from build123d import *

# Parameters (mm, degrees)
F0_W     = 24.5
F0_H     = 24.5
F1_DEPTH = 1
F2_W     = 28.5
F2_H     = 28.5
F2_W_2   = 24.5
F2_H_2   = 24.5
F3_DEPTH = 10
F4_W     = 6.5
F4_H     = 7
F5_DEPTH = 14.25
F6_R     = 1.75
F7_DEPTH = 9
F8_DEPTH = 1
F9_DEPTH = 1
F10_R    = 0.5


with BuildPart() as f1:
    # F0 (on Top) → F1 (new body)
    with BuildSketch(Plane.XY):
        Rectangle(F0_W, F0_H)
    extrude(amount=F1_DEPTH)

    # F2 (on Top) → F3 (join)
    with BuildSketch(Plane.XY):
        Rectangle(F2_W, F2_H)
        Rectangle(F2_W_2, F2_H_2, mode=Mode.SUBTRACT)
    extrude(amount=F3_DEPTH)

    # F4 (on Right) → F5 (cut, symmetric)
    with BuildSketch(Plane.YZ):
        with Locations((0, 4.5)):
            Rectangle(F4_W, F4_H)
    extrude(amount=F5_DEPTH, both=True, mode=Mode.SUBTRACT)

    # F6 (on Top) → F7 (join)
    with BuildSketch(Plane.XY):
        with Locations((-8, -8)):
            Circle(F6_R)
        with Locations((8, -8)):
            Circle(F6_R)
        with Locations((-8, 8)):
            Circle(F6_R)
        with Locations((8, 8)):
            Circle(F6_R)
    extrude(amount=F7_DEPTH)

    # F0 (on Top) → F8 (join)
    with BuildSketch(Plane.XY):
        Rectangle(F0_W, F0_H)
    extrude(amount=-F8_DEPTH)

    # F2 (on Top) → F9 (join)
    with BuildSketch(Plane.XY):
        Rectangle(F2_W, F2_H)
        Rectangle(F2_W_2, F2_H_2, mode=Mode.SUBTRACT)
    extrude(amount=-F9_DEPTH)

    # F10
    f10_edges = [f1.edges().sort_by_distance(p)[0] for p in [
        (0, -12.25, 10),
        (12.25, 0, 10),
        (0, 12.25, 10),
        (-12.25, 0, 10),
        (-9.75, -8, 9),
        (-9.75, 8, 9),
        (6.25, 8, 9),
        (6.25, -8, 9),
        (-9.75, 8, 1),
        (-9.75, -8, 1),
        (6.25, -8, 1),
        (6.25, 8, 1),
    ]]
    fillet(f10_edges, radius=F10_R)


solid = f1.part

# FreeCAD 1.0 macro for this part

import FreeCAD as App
import Part
import Sketcher
Q = App.Units.Quantity


def edges_at(feature, points):
    """Names of the edges that pass closest to the given points."""
    edges = feature.Shape.Edges
    near = lambda p: min(range(len(edges)), key=lambda i: edges[i].distToShape(Part.Vertex(*p))[0])
    return sorted({f"Edge{near(p) + 1}" for p in points})

doc = App.newDocument("Part")
body = doc.addObject("PartDesign::Body", "Body")

sketch1 = doc.addObject("Sketcher::SketchObject", "Sketch")
body.addObject(sketch1)
sketch1.AttachmentSupport = (doc.XY_Plane, [""])
sketch1.MapMode = "FlatFace"
sketch1.addGeometry([
    Part.LineSegment(App.Vector(-12, 12, 0), App.Vector(-12, -12, 0)),
    Part.LineSegment(App.Vector(-12, -12, 0), App.Vector(12, -12, 0)),
    Part.LineSegment(App.Vector(12, -12, 0), App.Vector(12, 12, 0)),
    Part.LineSegment(App.Vector(12, 12, 0), App.Vector(-12, 12, 0)),
], False)
sketch1.addConstraint([
    Sketcher.Constraint("Coincident", 0, 2, 1, 1),
    Sketcher.Constraint("Coincident", 1, 2, 2, 1),
    Sketcher.Constraint("Coincident", 2, 2, 3, 1),
    Sketcher.Constraint("Coincident", 3, 2, 0, 1),
    Sketcher.Constraint("Vertical", 0),
    Sketcher.Constraint("Horizontal", 1),
    Sketcher.Constraint("Vertical", 2),
    Sketcher.Constraint("Horizontal", 3),
    Sketcher.Constraint("Symmetric", 0, 2, 2, 2, -1, 1),
    Sketcher.Constraint("Equal", 3, 0),
    Sketcher.Constraint("DistanceX", 1, 1, 1, 2, Q("24.5 mm")),
])
pad1 = doc.addObject("PartDesign::Pad", "Pad")
body.addObject(pad1)
pad1.Profile = sketch1
pad1.Length = 1

sketch2 = doc.addObject("Sketcher::SketchObject", "Sketch001")
body.addObject(sketch2)
sketch2.AttachmentSupport = (doc.XY_Plane, [""])
sketch2.MapMode = "FlatFace"
sketch2.addGeometry([
    Part.LineSegment(App.Vector(-14, 14, 0), App.Vector(-14, -14, 0)),
    Part.LineSegment(App.Vector(-14, -14, 0), App.Vector(14, -14, 0)),
    Part.LineSegment(App.Vector(14, -14, 0), App.Vector(14, 14, 0)),
    Part.LineSegment(App.Vector(14, 14, 0), App.Vector(-14, 14, 0)),
    Part.LineSegment(App.Vector(12, -12, 0), App.Vector(-12, -12, 0)),
    Part.LineSegment(App.Vector(-12, -12, 0), App.Vector(-12, 12, 0)),
    Part.LineSegment(App.Vector(-12, 12, 0), App.Vector(12, 12, 0)),
    Part.LineSegment(App.Vector(12, 12, 0), App.Vector(12, -12, 0)),
], False)
sketch2.addConstraint([
    Sketcher.Constraint("Coincident", 0, 2, 1, 1),
    Sketcher.Constraint("Coincident", 1, 2, 2, 1),
    Sketcher.Constraint("Coincident", 2, 2, 3, 1),
    Sketcher.Constraint("Coincident", 3, 2, 0, 1),
    Sketcher.Constraint("Coincident", 4, 2, 5, 1),
    Sketcher.Constraint("Coincident", 5, 2, 6, 1),
    Sketcher.Constraint("Coincident", 6, 2, 7, 1),
    Sketcher.Constraint("Coincident", 7, 2, 4, 1),
    Sketcher.Constraint("Vertical", 0),
    Sketcher.Constraint("Horizontal", 1),
    Sketcher.Constraint("Vertical", 2),
    Sketcher.Constraint("Horizontal", 3),
    Sketcher.Constraint("Horizontal", 4),
    Sketcher.Constraint("Vertical", 5),
    Sketcher.Constraint("Horizontal", 6),
    Sketcher.Constraint("Vertical", 7),
    Sketcher.Constraint("Symmetric", 0, 2, 2, 2, -1, 1),
    Sketcher.Constraint("Symmetric", 4, 2, 6, 2, -1, 1),
    Sketcher.Constraint("Equal", 3, 0),
    Sketcher.Constraint("Equal", 6, 5),
    Sketcher.Constraint("DistanceX", 1, 1, 1, 2, Q("28.5 mm")),
    Sketcher.Constraint("DistanceX", 4, 2, 4, 1, Q("24.5 mm")),
])
pad2 = doc.addObject("PartDesign::Pad", "Pad001")
body.addObject(pad2)
pad2.Profile = sketch2
pad2.Length = 10

sketch3 = doc.addObject("Sketcher::SketchObject", "Sketch002")
body.addObject(sketch3)
sketch3.AttachmentSupport = (doc.YZ_Plane, [""])
sketch3.MapMode = "FlatFace"
sketch3.addGeometry([
    Part.LineSegment(App.Vector(-3, 8, 0), App.Vector(-3, 1, 0)),
    Part.LineSegment(App.Vector(-3, 1, 0), App.Vector(3, 1, 0)),
    Part.LineSegment(App.Vector(3, 1, 0), App.Vector(3, 8, 0)),
    Part.LineSegment(App.Vector(3, 8, 0), App.Vector(-3, 8, 0)),
], False)
sketch3.addConstraint([
    Sketcher.Constraint("Coincident", 0, 2, 1, 1),
    Sketcher.Constraint("Coincident", 1, 2, 2, 1),
    Sketcher.Constraint("Coincident", 2, 2, 3, 1),
    Sketcher.Constraint("Coincident", 3, 2, 0, 1),
    Sketcher.Constraint("Vertical", 0),
    Sketcher.Constraint("Horizontal", 1),
    Sketcher.Constraint("Vertical", 2),
    Sketcher.Constraint("Horizontal", 3),
    Sketcher.Constraint("DistanceY", 0, 2, 0, 1, Q("7 mm")),
    Sketcher.Constraint("DistanceX", 1, 1, 1, 2, Q("6.5 mm")),
    Sketcher.Constraint("DistanceY", -1, 1, 0, 2, Q("1 mm")),
    Sketcher.Constraint("DistanceX", 0, 2, -1, 1, Q("3.25 mm")),
])
pocket1 = doc.addObject("PartDesign::Pocket", "Pocket")
body.addObject(pocket1)
pocket1.Profile = sketch3
pocket1.Length = 28.5
pocket1.Midplane = True

sketch4 = doc.addObject("Sketcher::SketchObject", "Sketch003")
body.addObject(sketch4)
sketch4.AttachmentSupport = (doc.XY_Plane, [""])
sketch4.MapMode = "FlatFace"
sketch4.addGeometry([
    Part.Circle(App.Vector(-8, -8, 0), App.Vector(0, 0, 1), 1.8),
    Part.Circle(App.Vector(8, -8, 0), App.Vector(0, 0, 1), 1.8),
    Part.Circle(App.Vector(-8, 8, 0), App.Vector(0, 0, 1), 1.8),
    Part.Circle(App.Vector(8, 8, 0), App.Vector(0, 0, 1), 1.8),
], False)
sketch4.addConstraint([
    Sketcher.Constraint("Equal", 0, 1),
    Sketcher.Constraint("Equal", 1, 2),
    Sketcher.Constraint("Equal", 2, 3),
    Sketcher.Constraint("Symmetric", 1, 3, 2, 3, -1, 1),
    Sketcher.Constraint("Symmetric", 0, 3, 3, 3, -1, 1),
    Sketcher.Constraint("Symmetric", 0, 3, 1, 3, -2),
    Sketcher.Constraint("Diameter", 0, Q("3.5 mm")),
    Sketcher.Constraint("DistanceX", 0, 3, -1, 1, Q("8 mm")),
    Sketcher.Constraint("DistanceY", 0, 3, -1, 1, Q("8 mm")),
])
pad3 = doc.addObject("PartDesign::Pad", "Pad002")
body.addObject(pad3)
pad3.Profile = sketch4
pad3.Length = 9

sketch5 = doc.addObject("Sketcher::SketchObject", "Sketch004")
body.addObject(sketch5)
sketch5.AttachmentSupport = (doc.XY_Plane, [""])
sketch5.MapMode = "FlatFace"
sketch5.addGeometry([
    Part.LineSegment(App.Vector(-12, 12, 0), App.Vector(-12, -12, 0)),
    Part.LineSegment(App.Vector(-12, -12, 0), App.Vector(12, -12, 0)),
    Part.LineSegment(App.Vector(12, -12, 0), App.Vector(12, 12, 0)),
    Part.LineSegment(App.Vector(12, 12, 0), App.Vector(-12, 12, 0)),
], False)
sketch5.addConstraint([
    Sketcher.Constraint("Coincident", 0, 2, 1, 1),
    Sketcher.Constraint("Coincident", 1, 2, 2, 1),
    Sketcher.Constraint("Coincident", 2, 2, 3, 1),
    Sketcher.Constraint("Coincident", 3, 2, 0, 1),
    Sketcher.Constraint("Vertical", 0),
    Sketcher.Constraint("Horizontal", 1),
    Sketcher.Constraint("Vertical", 2),
    Sketcher.Constraint("Horizontal", 3),
    Sketcher.Constraint("Symmetric", 0, 2, 2, 2, -1, 1),
    Sketcher.Constraint("Equal", 3, 0),
    Sketcher.Constraint("DistanceX", 1, 1, 1, 2, Q("24.5 mm")),
])
pad4 = doc.addObject("PartDesign::Pad", "Pad003")
body.addObject(pad4)
pad4.Profile = sketch5
pad4.Length = 1
pad4.Reversed = True

sketch6 = doc.addObject("Sketcher::SketchObject", "Sketch005")
body.addObject(sketch6)
sketch6.AttachmentSupport = (doc.XY_Plane, [""])
sketch6.MapMode = "FlatFace"
sketch6.addGeometry([
    Part.LineSegment(App.Vector(-14, 14, 0), App.Vector(-14, -14, 0)),
    Part.LineSegment(App.Vector(-14, -14, 0), App.Vector(14, -14, 0)),
    Part.LineSegment(App.Vector(14, -14, 0), App.Vector(14, 14, 0)),
    Part.LineSegment(App.Vector(14, 14, 0), App.Vector(-14, 14, 0)),
    Part.LineSegment(App.Vector(12, -12, 0), App.Vector(-12, -12, 0)),
    Part.LineSegment(App.Vector(-12, -12, 0), App.Vector(-12, 12, 0)),
    Part.LineSegment(App.Vector(-12, 12, 0), App.Vector(12, 12, 0)),
    Part.LineSegment(App.Vector(12, 12, 0), App.Vector(12, -12, 0)),
], False)
sketch6.addConstraint([
    Sketcher.Constraint("Coincident", 0, 2, 1, 1),
    Sketcher.Constraint("Coincident", 1, 2, 2, 1),
    Sketcher.Constraint("Coincident", 2, 2, 3, 1),
    Sketcher.Constraint("Coincident", 3, 2, 0, 1),
    Sketcher.Constraint("Coincident", 4, 2, 5, 1),
    Sketcher.Constraint("Coincident", 5, 2, 6, 1),
    Sketcher.Constraint("Coincident", 6, 2, 7, 1),
    Sketcher.Constraint("Coincident", 7, 2, 4, 1),
    Sketcher.Constraint("Vertical", 0),
    Sketcher.Constraint("Horizontal", 1),
    Sketcher.Constraint("Vertical", 2),
    Sketcher.Constraint("Horizontal", 3),
    Sketcher.Constraint("Horizontal", 4),
    Sketcher.Constraint("Vertical", 5),
    Sketcher.Constraint("Horizontal", 6),
    Sketcher.Constraint("Vertical", 7),
    Sketcher.Constraint("Symmetric", 0, 2, 2, 2, -1, 1),
    Sketcher.Constraint("Symmetric", 4, 2, 6, 2, -1, 1),
    Sketcher.Constraint("Equal", 3, 0),
    Sketcher.Constraint("Equal", 6, 5),
    Sketcher.Constraint("DistanceX", 1, 1, 1, 2, Q("28.5 mm")),
    Sketcher.Constraint("DistanceX", 4, 2, 4, 1, Q("24.5 mm")),
])
pad5 = doc.addObject("PartDesign::Pad", "Pad004")
body.addObject(pad5)
pad5.Profile = sketch6
pad5.Length = 1
pad5.Reversed = True
doc.recompute()

fillet = doc.addObject("PartDesign::Fillet", "Fillet")
body.addObject(fillet)
fillet.Base = (pad5, edges_at(pad5, [
    (0, -12.25, 10),
    (12.25, 0, 10),
    (0, 12.25, 10),
    (-12.25, 0, 10),
    (-9.75, -8, 9),
    (-9.75, 8, 9),
    (6.25, 8, 9),
    (6.25, -8, 9),
    (-9.75, 8, 1),
    (-9.75, -8, 1),
    (6.25, -8, 1),
    (6.25, 8, 1),
]))
fillet.Radius = 0.5

doc.recompute()
